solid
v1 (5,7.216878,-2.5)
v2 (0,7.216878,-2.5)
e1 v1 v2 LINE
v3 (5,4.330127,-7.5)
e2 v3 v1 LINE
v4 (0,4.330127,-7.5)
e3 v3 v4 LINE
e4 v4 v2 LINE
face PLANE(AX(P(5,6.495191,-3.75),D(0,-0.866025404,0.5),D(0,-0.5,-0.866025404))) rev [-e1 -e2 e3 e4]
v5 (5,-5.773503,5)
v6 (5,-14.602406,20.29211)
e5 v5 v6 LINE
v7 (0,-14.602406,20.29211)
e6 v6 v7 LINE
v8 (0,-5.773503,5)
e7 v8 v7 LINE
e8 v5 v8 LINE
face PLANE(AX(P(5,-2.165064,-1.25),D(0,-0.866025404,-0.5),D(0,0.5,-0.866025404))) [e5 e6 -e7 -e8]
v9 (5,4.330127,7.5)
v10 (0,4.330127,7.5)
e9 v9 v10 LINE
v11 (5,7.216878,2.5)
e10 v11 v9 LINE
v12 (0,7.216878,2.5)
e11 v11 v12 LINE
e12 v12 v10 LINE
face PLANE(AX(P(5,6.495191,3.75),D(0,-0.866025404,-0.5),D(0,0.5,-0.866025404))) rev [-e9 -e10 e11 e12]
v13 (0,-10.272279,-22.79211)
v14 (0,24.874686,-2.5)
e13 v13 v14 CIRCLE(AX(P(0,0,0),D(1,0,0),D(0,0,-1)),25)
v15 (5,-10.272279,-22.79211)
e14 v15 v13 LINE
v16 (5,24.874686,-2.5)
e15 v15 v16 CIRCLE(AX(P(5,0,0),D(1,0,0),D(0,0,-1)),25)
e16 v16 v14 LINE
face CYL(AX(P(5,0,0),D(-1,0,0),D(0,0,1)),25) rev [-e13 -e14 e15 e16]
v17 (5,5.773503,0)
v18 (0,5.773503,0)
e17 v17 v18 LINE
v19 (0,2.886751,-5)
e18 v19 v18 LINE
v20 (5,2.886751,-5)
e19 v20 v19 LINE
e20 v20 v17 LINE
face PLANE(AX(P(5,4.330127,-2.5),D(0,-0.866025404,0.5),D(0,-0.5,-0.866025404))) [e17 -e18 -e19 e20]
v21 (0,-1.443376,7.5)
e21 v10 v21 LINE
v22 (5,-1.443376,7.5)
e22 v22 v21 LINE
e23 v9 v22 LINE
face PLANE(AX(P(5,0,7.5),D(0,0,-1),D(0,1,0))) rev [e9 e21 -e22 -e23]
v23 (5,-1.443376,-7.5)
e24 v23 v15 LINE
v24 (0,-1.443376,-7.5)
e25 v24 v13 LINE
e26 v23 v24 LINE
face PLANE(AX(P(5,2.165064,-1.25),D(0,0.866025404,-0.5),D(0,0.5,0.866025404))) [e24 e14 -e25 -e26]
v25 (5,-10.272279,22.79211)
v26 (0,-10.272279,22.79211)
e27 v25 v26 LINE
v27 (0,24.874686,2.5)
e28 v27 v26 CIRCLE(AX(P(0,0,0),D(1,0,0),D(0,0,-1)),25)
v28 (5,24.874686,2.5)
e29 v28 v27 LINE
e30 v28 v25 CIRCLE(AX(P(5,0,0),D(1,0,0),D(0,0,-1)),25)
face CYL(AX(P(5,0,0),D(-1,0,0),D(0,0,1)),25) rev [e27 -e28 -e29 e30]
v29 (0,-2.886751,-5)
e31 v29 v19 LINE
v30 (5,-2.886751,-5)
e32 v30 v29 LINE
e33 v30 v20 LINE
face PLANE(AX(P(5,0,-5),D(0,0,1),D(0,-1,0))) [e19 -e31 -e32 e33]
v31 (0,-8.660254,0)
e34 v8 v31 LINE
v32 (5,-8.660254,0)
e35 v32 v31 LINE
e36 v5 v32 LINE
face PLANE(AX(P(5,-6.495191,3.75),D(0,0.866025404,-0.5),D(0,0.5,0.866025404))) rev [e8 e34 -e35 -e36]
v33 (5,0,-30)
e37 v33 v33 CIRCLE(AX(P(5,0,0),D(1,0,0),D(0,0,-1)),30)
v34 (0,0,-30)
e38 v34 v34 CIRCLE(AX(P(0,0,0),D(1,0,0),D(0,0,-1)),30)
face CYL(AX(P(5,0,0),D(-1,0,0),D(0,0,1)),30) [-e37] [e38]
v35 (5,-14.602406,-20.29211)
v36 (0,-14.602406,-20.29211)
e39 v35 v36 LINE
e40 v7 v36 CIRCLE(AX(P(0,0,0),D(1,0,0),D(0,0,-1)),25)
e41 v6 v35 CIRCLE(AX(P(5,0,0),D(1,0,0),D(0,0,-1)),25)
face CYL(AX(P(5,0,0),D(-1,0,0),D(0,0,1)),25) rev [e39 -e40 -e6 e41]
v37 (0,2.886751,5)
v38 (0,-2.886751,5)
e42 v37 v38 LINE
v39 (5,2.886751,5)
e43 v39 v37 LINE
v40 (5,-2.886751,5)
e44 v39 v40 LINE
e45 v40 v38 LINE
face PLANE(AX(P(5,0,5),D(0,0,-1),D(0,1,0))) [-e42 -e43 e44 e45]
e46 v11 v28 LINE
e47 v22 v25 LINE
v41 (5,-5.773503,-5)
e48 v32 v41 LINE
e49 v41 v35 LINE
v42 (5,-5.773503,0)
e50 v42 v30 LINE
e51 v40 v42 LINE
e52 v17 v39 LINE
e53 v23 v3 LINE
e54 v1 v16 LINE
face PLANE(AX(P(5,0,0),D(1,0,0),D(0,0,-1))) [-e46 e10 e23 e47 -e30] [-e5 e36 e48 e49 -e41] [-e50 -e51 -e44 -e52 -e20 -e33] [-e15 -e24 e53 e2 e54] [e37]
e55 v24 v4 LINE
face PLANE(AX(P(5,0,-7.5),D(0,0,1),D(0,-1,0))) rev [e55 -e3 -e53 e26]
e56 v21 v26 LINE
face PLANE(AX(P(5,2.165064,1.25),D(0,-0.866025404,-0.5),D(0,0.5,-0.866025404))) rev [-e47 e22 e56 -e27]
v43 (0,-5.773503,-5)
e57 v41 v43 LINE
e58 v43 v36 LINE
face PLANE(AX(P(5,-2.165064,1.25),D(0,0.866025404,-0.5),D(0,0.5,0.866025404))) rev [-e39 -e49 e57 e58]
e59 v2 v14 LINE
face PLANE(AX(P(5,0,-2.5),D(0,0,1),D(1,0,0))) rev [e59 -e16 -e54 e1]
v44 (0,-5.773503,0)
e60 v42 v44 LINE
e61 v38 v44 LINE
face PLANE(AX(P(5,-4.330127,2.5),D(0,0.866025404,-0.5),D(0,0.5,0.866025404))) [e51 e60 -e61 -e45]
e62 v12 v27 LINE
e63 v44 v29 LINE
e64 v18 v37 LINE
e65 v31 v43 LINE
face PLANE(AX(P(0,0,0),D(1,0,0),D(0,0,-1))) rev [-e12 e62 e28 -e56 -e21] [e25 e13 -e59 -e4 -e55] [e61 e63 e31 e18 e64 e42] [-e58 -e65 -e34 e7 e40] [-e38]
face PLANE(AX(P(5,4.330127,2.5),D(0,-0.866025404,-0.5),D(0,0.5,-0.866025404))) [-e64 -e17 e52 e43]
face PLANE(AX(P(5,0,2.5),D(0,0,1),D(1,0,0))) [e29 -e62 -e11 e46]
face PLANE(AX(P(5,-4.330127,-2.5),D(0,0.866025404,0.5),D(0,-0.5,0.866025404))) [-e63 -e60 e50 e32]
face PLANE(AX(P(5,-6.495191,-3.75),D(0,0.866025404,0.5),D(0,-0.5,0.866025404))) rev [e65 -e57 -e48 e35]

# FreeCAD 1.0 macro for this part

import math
import FreeCAD as App
import Part
import Sketcher
from FreeCAD import Vector
Q = App.Units.Quantity

doc = App.newDocument("Part")
params = doc.addObject("Spreadsheet::Sheet", "Params")
for row, (alias, value) in enumerate([
    ("sketch1_radius", "30 mm"),
    ("sketch1_radius2", "25 mm"),
    ("pad1_length", "5 mm"),
], start=1):
    params.set(f"A{row}", alias)
    params.set(f"B{row}", "=" + value)
    params.setAlias(f"B{row}", alias)

body = doc.addObject("PartDesign::Body", "Body")

sketch1 = body.newObject("Sketcher::SketchObject", "Sketch")
sketch1.AttachmentSupport = (doc.getObject("YZ_Plane"), [""])
sketch1.MapMode = "FlatFace"
sketch1.addGeometry([
    Part.ArcOfCircle(Part.Circle(Vector(0, 0, 0), Vector(0, 0, 1), 30), math.radians(125), math.radians(235)),
    Part.ArcOfCircle(Part.Circle(Vector(0, 0, 0), Vector(0, 0, 1), 30), math.radians(-124.78), math.radians(-115.22)),
    Part.ArcOfCircle(Part.Circle(Vector(0, 0, 0), Vector(0, 0, 1), 30), math.radians(-115), math.radians(-90)),
    Part.ArcOfCircle(Part.Circle(Vector(0, 0, 0), Vector(0, 0, 1), 30), math.radians(-90), math.radians(-5)),
    Part.ArcOfCircle(Part.Circle(Vector(0, 0, 0), Vector(0, 0, 1), 30), math.radians(-4.78), math.radians(4.78)),
    Part.ArcOfCircle(Part.Circle(Vector(0, 0, 0), Vector(0, 0, 1), 30), math.radians(5), math.radians(115)),
    Part.ArcOfCircle(Part.Circle(Vector(0, 0, 0), Vector(0, 0, 1), 30), math.radians(115.22), math.radians(124.78)),
    Part.LineSegment(Vector(-15, 20, 0), Vector(-6, 5, 0)),
    Part.LineSegment(Vector(-6, 5, 0), Vector(-9, 0, 0)),
    Part.LineSegment(Vector(-9, 0, 0), Vector(-6, -5, 0)),
    Part.LineSegment(Vector(-6, -5, 0), Vector(-15, -20, 0)),
    Part.ArcOfCircle(Part.Circle(Vector(0, 0, 0), Vector(0, 0, 1), 25), math.radians(126), math.radians(234)),
    Part.LineSegment(Vector(4, 8, 0), Vector(-1, 8, 0)),
    Part.LineSegment(Vector(-1, 8, 0), Vector(-10, 23, 0)),
    Part.ArcOfCircle(Part.Circle(Vector(0, 0, 0), Vector(0, 0, 1), 25), math.radians(6), math.radians(114)),
    Part.LineSegment(Vector(25, 2, 0), Vector(7, 2, 0)),
    Part.LineSegment(Vector(7, 2, 0), Vector(4, 8, 0)),
    Part.LineSegment(Vector(-6, 0, 0), Vector(-3, 5, 0)),
    Part.LineSegment(Vector(-3, 5, 0), Vector(3, 5, 0)),
    Part.LineSegment(Vector(3, 5, 0), Vector(6, 0, 0)),
    Part.LineSegment(Vector(6, 0, 0), Vector(3, -5, 0)),
    Part.LineSegment(Vector(3, -5, 0), Vector(-3, -5, 0)),
    Part.LineSegment(Vector(-3, -5, 0), Vector(-6, 0, 0)),
    Part.LineSegment(Vector(-10, -23, 0), Vector(-1, -8, 0)),
    Part.LineSegment(Vector(-1, -8, 0), Vector(4, -8, 0)),
    Part.LineSegment(Vector(4, -8, 0), Vector(7, -2, 0)),
    Part.LineSegment(Vector(7, -2, 0), Vector(25, -2, 0)),
    Part.ArcOfCircle(Part.Circle(Vector(0, 0, 0), Vector(0, 0, 1), 25), math.radians(-90), math.radians(-6)),
    Part.ArcOfCircle(Part.Circle(Vector(0, 0, 0), Vector(0, 0, 1), 25), math.radians(-114), math.radians(-90)),
], False)
sketch1.addConstraint([
    Sketcher.Constraint("Tangent", 0, 2, 1, 1),
    Sketcher.Constraint("Tangent", 1, 2, 2, 1),
    Sketcher.Constraint("Tangent", 2, 2, 3, 1),
    Sketcher.Constraint("Tangent", 3, 2, 4, 1),
    Sketcher.Constraint("Tangent", 4, 2, 5, 1),
    Sketcher.Constraint("Tangent", 5, 2, 6, 1),
    Sketcher.Constraint("Tangent", 6, 2, 0, 1),
    Sketcher.Constraint("Coincident", 7, 2, 8, 1),
    Sketcher.Constraint("Coincident", 8, 2, 9, 1),
    Sketcher.Constraint("Coincident", 9, 2, 10, 1),
    Sketcher.Constraint("Coincident", 10, 2, 11, 2),
    Sketcher.Constraint("Coincident", 11, 1, 7, 1),
    Sketcher.Constraint("Coincident", 12, 2, 13, 1),
    Sketcher.Constraint("Coincident", 13, 2, 14, 2),
    Sketcher.Constraint("Coincident", 14, 1, 15, 1),
    Sketcher.Constraint("Coincident", 15, 2, 16, 1),
    Sketcher.Constraint("Coincident", 16, 2, 12, 1),
    Sketcher.Constraint("Coincident", 17, 2, 18, 1),
    Sketcher.Constraint("Coincident", 18, 2, 19, 1),
    Sketcher.Constraint("Coincident", 19, 2, 20, 1),
    Sketcher.Constraint("Coincident", 20, 2, 21, 1),
    Sketcher.Constraint("Coincident", 21, 2, 22, 1),
    Sketcher.Constraint("Coincident", 22, 2, 17, 1),
    Sketcher.Constraint("Coincident", 23, 2, 24, 1),
    Sketcher.Constraint("Coincident", 24, 2, 25, 1),
    Sketcher.Constraint("Coincident", 25, 2, 26, 1),
    Sketcher.Constraint("Coincident", 26, 2, 27, 2),
    Sketcher.Constraint("Tangent", 27, 1, 28, 2),
    Sketcher.Constraint("Coincident", 28, 1, 23, 1),
    Sketcher.Constraint("Horizontal", 12),
    Sketcher.Constraint("Horizontal", 15),
    Sketcher.Constraint("Horizontal", 18),
    Sketcher.Constraint("Horizontal", 21),
    Sketcher.Constraint("Horizontal", 24),
    Sketcher.Constraint("Horizontal", 26),
    Sketcher.Constraint("Coincident", 0, 3, -1, 1),
    Sketcher.Constraint("Coincident", 2, 3, -1, 1),
    Sketcher.Constraint("Coincident", 4, 3, -1, 1),
    Sketcher.Constraint("Coincident", 11, 3, -1, 1),
    Sketcher.Constraint("Coincident", 14, 3, -1, 1),
    Sketcher.Constraint("Coincident", 27, 3, -1, 1),
    Sketcher.Constraint("Equal", 11, 14),
    Sketcher.Constraint("Equal", 14, 27),
    Sketcher.Constraint("Equal", 27, 28),
    Sketcher.Constraint("Symmetric", 17, 2, 20, 2, -1, 1),
    Sketcher.Constraint("Symmetric", 19, 2, 22, 2, -1, 1),
    Sketcher.Constraint("Symmetric", 7, 2, 9, 2, -1),
    Sketcher.Constraint("Symmetric", 12, 2, 23, 2, -1),
    Sketcher.Constraint("Symmetric", 15, 2, 25, 2, -1),
    Sketcher.Constraint("PointOnObject", 2, 2, -2),
    Sketcher.Constraint("PointOnObject", 8, 2, -1),
    Sketcher.Constraint("PointOnObject", 19, 2, -1),
    Sketcher.Constraint("PointOnObject", 27, 1, -2),
    Sketcher.Constraint("Parallel", 7, 9),
    Sketcher.Constraint("Parallel", 8, 10),
    Sketcher.Constraint("Parallel", 9, 13),
    Sketcher.Constraint("Parallel", 13, 16),
    Sketcher.Constraint("Parallel", 10, 17),
    Sketcher.Constraint("Parallel", 16, 19),
    Sketcher.Constraint("Parallel", 19, 22),
    Sketcher.Constraint("Parallel", 20, 23),
    Sketcher.Constraint("Parallel", 23, 25),
    Sketcher.Constraint("Horizontal", 4, 2, 14, 1),
    Sketcher.Constraint("Horizontal", 7, 2, 17, 2),
    Sketcher.Constraint("Horizontal", 3, 2, 25, 2),
    Sketcher.Constraint("Vertical", 1, 2, 5, 2),
    Sketcher.Constraint("Vertical", 0, 2, 6, 2),
    Sketcher.Constraint("Vertical", 9, 2, 22, 2),
    Sketcher.Constraint("Equal", 12, 18),
    Sketcher.Constraint("Equal", 10, 13),
    Sketcher.Constraint("Equal", 9, 16),
    Sketcher.Constraint("Radius", 0, Q("30 mm")),
    Sketcher.Constraint("Radius", 11, Q("25 mm")),
    Sketcher.Constraint("Angle", 7, Q("-60 deg")),
    Sketcher.Constraint("DistanceY", -1, 1, 7, 2, Q("5 mm")),
    Sketcher.Constraint("DistanceY", 3, 2, 4, 2, Q("5 mm")),
    Sketcher.Constraint("DistanceY", 1, 2, 0, 2, Q("2.5 mm")),
    Sketcher.Constraint("DistanceX", 12, 2, 12, 1, Q("5.773503 mm")),
    Sketcher.Constraint("DistanceX", 0, 2, -1, 1, Q("17.112889 mm")),
])
sketch1.setExpression("Constraints[71]", "Params.sketch1_radius")
sketch1.setExpression("Constraints[72]", "Params.sketch1_radius2")
pad1 = body.newObject("PartDesign::Pad", "Pad")
pad1.Profile = sketch1
pad1.setExpression("Length", "Params.pad1_length")

doc.recompute()
